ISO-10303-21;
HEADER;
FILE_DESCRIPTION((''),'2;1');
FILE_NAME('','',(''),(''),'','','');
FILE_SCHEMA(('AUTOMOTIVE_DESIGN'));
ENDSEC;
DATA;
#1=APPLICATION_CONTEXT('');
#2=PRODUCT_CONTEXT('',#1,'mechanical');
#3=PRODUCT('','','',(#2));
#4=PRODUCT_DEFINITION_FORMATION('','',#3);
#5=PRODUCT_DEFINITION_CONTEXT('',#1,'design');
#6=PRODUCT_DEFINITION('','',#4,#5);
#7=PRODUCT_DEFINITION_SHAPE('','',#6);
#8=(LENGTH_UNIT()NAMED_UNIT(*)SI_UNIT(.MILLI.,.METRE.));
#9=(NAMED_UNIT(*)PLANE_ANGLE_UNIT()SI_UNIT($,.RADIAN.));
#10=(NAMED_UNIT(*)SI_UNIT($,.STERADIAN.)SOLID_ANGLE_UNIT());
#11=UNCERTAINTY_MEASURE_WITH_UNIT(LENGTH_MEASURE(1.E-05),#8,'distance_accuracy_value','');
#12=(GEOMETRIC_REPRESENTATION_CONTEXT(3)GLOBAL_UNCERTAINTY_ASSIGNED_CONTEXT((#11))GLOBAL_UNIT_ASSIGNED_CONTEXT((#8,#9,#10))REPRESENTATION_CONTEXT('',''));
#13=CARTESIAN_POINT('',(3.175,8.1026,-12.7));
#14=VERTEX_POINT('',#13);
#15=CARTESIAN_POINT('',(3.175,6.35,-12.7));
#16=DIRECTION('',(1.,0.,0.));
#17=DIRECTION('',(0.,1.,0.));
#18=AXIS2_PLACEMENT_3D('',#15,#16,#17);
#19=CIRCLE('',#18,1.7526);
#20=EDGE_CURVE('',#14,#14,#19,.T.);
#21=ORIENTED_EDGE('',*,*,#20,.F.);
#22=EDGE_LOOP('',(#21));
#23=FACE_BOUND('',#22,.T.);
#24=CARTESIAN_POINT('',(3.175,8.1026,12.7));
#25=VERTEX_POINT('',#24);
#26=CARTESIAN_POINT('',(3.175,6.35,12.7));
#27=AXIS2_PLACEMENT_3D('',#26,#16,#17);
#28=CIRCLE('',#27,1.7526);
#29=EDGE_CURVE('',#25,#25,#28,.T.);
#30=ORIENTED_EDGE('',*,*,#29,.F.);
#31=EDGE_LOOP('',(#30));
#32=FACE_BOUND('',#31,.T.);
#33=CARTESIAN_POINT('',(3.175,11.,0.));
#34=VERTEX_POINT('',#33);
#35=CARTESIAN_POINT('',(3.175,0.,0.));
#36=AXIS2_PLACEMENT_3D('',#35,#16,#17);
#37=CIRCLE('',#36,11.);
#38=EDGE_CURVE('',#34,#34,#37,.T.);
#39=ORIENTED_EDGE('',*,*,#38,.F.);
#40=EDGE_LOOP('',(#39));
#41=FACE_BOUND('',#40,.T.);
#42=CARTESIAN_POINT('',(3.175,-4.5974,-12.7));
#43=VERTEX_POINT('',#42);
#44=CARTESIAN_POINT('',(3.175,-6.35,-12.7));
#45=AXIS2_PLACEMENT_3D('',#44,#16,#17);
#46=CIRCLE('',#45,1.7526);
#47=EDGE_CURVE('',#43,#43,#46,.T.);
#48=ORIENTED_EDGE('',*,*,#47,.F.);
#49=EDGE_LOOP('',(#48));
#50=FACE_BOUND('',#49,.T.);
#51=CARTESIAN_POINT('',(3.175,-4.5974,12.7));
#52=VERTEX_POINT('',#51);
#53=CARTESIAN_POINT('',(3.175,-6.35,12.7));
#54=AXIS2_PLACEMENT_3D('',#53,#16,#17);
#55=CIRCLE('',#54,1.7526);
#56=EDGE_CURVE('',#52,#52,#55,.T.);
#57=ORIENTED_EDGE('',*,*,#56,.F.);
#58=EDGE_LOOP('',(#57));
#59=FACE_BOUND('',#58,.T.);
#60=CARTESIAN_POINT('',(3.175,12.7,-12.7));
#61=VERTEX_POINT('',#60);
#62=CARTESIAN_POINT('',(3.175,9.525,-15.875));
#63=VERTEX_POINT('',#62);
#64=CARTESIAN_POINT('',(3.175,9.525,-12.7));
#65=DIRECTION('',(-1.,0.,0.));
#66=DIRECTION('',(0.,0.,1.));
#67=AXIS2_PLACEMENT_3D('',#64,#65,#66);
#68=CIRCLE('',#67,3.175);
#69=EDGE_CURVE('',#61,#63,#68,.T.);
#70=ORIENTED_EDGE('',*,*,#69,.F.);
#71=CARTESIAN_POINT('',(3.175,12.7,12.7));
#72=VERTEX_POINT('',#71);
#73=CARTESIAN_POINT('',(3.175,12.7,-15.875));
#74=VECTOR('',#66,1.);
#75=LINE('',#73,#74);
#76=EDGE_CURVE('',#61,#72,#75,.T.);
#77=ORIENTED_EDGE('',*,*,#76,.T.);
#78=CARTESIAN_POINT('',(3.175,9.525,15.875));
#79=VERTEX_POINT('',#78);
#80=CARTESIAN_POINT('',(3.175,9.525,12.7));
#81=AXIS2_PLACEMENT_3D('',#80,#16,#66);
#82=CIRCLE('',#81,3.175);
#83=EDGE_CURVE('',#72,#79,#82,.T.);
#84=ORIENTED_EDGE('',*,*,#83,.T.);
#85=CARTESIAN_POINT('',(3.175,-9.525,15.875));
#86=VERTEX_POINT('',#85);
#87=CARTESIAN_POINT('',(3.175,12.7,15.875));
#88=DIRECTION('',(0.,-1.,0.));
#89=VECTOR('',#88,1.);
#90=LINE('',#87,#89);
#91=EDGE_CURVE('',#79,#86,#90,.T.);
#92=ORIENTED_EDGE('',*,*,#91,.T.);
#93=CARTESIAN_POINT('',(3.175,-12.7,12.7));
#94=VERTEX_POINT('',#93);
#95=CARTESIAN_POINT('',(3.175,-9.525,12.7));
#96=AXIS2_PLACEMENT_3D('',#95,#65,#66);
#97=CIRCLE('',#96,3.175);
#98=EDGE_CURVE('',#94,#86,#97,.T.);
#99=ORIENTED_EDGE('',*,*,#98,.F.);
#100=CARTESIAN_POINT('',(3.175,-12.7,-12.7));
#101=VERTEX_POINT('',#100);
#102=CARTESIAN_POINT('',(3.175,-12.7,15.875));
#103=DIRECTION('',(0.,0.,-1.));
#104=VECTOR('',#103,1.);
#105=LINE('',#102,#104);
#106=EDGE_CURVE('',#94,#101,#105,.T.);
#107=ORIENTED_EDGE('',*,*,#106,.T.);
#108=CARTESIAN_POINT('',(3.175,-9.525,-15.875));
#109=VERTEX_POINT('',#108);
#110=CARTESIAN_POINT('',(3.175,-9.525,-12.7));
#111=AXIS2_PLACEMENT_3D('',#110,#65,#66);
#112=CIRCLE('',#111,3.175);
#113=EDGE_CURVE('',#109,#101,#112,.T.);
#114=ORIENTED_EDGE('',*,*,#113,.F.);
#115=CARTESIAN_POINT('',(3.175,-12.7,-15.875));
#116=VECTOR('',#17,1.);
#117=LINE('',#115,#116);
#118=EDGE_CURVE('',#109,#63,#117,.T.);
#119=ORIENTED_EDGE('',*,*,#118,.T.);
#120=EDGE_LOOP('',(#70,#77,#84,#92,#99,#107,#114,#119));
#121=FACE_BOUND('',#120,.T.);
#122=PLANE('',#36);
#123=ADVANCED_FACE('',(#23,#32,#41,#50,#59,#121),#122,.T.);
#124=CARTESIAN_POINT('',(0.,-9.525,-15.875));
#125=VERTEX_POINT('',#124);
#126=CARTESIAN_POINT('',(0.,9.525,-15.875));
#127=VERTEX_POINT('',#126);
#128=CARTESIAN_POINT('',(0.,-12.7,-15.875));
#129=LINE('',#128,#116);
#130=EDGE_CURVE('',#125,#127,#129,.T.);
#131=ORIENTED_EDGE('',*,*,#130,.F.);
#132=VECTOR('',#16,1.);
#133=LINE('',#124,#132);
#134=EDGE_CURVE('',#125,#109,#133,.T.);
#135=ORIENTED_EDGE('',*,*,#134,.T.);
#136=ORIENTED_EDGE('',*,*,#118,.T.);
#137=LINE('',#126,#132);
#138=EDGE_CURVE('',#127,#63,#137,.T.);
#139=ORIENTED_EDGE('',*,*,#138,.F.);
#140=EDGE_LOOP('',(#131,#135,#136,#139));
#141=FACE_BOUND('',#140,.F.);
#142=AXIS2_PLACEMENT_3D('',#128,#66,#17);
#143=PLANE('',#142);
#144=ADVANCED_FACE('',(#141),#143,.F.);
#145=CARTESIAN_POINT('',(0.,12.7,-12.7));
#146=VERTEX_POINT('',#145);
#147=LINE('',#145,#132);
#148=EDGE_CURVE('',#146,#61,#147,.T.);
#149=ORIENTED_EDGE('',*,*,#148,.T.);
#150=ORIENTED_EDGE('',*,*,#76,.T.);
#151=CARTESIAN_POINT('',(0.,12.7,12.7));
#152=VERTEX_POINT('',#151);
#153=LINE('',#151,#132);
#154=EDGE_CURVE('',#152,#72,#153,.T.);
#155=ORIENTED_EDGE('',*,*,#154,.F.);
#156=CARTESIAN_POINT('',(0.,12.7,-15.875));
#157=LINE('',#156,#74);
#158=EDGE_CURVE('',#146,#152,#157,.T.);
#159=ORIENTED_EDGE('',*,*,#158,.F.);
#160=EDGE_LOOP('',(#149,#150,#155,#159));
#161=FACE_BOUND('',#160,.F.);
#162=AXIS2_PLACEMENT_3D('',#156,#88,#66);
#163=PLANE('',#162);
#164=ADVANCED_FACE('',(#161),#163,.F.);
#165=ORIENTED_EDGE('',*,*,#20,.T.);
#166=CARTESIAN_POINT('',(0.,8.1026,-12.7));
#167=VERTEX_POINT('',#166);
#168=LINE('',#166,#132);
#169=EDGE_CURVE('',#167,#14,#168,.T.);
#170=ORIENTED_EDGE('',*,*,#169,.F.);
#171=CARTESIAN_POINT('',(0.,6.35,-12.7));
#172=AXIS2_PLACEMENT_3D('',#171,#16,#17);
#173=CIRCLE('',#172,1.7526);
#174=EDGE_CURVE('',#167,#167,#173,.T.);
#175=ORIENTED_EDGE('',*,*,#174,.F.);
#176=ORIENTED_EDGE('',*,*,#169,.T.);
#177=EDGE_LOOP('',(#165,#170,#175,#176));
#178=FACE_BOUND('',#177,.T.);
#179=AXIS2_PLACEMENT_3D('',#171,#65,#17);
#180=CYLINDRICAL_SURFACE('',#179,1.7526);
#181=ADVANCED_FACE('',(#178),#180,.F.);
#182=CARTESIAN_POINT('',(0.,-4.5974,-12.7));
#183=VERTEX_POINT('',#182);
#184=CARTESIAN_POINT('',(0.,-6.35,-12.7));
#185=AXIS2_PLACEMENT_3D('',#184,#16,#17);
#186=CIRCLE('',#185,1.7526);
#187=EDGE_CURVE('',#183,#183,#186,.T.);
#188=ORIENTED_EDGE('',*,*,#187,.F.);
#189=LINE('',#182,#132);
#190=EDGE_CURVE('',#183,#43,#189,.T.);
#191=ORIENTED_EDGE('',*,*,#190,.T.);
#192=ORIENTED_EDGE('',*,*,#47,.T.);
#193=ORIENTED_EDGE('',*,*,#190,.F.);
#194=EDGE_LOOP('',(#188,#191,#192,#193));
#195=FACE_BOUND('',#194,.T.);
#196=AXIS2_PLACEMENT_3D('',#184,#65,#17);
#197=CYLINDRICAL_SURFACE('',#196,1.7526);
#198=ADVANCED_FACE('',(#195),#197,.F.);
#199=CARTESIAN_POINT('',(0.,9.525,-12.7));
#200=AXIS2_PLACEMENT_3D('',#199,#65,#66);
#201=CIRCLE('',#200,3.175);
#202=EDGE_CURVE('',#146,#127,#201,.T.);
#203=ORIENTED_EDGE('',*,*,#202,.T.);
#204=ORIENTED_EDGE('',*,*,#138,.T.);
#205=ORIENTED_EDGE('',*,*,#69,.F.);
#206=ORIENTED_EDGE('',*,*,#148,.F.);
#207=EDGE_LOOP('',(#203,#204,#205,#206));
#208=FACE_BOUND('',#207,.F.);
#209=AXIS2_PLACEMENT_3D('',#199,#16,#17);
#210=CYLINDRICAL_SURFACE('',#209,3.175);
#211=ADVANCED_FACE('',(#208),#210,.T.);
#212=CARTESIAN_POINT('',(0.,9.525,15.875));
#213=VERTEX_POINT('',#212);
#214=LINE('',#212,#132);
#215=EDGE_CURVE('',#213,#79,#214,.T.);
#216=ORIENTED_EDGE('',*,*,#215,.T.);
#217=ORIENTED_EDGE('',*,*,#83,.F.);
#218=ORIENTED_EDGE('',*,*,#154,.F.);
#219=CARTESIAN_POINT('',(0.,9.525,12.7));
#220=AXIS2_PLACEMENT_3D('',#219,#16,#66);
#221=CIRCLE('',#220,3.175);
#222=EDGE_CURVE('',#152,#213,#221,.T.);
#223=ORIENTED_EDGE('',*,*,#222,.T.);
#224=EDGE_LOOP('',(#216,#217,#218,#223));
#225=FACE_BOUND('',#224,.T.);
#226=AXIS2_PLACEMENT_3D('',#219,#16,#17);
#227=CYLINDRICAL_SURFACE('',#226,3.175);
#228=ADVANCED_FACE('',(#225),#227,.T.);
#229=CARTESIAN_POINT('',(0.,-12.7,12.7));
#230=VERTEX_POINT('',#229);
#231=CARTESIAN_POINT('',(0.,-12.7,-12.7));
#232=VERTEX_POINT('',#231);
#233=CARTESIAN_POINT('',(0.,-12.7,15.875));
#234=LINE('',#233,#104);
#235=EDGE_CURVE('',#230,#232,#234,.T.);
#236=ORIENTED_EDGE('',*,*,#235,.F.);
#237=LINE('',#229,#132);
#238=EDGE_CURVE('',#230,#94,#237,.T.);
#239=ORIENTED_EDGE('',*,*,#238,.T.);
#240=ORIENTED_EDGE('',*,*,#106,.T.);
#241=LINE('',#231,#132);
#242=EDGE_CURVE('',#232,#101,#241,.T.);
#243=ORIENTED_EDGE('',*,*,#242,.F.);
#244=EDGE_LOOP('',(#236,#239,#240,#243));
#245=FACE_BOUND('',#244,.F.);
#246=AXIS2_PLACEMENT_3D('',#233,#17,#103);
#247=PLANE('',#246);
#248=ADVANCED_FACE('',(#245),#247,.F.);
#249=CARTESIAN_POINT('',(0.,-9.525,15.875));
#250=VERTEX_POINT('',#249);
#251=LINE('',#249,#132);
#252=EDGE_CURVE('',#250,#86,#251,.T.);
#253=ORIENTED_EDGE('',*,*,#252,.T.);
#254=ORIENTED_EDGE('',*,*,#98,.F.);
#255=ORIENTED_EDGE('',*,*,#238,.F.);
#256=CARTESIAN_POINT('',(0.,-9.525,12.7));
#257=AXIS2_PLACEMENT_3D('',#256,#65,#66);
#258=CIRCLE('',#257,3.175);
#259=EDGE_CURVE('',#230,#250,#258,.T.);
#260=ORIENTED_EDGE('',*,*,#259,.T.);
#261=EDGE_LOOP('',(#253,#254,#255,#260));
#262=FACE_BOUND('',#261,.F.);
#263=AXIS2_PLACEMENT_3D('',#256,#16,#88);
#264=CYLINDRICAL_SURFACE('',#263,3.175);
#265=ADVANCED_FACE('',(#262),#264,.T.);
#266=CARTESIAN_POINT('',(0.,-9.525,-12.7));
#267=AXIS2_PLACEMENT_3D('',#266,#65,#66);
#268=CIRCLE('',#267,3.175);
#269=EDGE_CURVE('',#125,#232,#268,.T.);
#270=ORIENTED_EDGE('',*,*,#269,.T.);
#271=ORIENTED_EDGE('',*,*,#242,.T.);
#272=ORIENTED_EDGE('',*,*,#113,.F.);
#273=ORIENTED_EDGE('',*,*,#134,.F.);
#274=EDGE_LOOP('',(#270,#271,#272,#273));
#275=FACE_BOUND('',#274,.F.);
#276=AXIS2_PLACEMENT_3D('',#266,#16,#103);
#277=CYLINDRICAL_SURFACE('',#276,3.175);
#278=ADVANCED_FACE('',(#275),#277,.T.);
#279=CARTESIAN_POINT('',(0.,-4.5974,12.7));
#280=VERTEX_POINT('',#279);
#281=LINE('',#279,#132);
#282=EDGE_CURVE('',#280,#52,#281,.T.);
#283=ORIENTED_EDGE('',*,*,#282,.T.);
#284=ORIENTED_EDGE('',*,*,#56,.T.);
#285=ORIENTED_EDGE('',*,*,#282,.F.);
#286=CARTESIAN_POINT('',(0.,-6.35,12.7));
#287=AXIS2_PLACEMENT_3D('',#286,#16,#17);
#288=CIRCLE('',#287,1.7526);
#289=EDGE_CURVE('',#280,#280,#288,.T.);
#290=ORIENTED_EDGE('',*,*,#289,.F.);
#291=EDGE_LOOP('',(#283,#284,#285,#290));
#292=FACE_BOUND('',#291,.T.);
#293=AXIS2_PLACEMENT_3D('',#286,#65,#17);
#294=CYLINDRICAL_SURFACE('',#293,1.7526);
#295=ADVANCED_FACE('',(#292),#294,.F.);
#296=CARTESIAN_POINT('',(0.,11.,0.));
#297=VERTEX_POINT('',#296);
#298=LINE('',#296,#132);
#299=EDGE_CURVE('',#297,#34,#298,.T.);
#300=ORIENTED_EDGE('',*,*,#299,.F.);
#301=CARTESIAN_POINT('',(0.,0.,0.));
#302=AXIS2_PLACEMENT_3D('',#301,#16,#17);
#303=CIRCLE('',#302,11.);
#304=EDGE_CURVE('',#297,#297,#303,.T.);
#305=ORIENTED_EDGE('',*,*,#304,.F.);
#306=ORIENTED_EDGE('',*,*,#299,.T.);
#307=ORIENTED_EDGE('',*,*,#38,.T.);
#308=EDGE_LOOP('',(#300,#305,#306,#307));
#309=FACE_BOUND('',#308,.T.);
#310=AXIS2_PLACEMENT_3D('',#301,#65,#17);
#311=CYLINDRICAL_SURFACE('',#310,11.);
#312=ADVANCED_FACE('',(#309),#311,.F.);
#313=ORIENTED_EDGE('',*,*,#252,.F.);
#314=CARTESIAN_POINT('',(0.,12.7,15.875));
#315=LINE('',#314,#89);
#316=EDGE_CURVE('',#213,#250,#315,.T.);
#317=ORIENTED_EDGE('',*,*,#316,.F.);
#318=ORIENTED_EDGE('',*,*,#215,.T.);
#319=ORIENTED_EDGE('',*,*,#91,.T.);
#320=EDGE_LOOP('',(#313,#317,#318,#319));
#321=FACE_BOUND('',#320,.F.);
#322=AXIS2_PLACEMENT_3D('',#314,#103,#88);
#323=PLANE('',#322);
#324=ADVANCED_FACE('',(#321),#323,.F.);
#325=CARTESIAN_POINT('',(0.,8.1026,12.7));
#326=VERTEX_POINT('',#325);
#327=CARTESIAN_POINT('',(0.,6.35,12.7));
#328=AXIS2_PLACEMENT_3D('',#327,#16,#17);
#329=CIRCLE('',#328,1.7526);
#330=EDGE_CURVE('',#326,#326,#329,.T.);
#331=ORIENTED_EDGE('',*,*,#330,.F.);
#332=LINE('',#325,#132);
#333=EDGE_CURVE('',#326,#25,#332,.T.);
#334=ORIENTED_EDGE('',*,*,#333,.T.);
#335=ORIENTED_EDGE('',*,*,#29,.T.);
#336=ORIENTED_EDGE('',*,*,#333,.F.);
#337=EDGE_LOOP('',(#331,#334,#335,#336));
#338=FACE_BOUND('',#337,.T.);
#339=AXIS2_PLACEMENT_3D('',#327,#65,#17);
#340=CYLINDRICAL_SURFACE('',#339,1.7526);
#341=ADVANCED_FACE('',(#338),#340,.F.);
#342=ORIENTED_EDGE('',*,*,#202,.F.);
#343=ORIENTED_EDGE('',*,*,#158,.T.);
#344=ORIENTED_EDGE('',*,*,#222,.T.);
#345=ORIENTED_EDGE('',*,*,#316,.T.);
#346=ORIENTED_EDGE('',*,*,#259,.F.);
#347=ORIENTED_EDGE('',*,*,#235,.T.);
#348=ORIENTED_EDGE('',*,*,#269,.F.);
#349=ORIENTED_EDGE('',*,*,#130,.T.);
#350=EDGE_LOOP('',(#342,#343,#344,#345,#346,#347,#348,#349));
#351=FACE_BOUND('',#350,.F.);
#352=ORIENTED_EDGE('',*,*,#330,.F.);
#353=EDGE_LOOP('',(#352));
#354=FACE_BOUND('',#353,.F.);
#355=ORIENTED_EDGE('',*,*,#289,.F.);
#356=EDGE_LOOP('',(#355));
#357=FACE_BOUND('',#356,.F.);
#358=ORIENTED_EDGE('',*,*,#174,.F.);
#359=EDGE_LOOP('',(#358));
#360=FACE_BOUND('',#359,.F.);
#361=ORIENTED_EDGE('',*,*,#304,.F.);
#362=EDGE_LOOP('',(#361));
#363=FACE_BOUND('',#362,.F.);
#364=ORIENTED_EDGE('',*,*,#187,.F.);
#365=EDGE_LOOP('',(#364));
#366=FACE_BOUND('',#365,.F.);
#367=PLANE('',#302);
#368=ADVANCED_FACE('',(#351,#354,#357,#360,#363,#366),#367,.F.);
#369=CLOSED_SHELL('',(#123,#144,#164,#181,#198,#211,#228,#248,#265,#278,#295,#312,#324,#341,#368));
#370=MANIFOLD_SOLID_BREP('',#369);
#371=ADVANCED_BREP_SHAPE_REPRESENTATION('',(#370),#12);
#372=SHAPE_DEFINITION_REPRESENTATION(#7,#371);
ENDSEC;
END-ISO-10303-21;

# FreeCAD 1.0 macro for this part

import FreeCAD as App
import Part
import Sketcher

V = App.Vector
Q = App.Units.Quantity


def edges_at(feature, points):
    """Names of the edges that pass closest to the given points."""
    edges = feature.Shape.Edges
    near = lambda p: min(range(len(edges)), key=lambda i: edges[i].distToShape(Part.Vertex(*p))[0])
    return sorted({f"Edge{near(p) + 1}" for p in points})

doc = App.newDocument("Part")
body = doc.addObject("PartDesign::Body", "Body")

# Sketch on YZ plane
sketch1 = body.newObject("Sketcher::SketchObject", "Sketch")
sketch1.AttachmentSupport = (doc.getObject("YZ_Plane"), [""])
sketch1.MapMode = "FlatFace"
sketch1.addGeometry(Part.LineSegment(V(12.7, -15.9, 0), V(12.7, 15.9, 0)), False)
sketch1.addGeometry(Part.LineSegment(V(12.7, 15.9, 0), V(-12.7, 15.9, 0)), False)
sketch1.addGeometry(Part.LineSegment(V(-12.7, 15.9, 0), V(-12.7, -15.9, 0)), False)
sketch1.addGeometry(Part.LineSegment(V(-12.7, -15.9, 0), V(12.7, -15.9, 0)), False)
sketch1.addGeometry(Part.Circle(V(-6.3, -12.7, 0), V(0, 0, 1), 1.8), False)
sketch1.addGeometry(Part.Circle(V(6.3, -12.7, 0), V(0, 0, 1), 1.8), False)
sketch1.addGeometry(Part.Circle(V(0, 0, 0), V(0, 0, 1), 11), False)
sketch1.addGeometry(Part.Circle(V(-6.3, 12.7, 0), V(0, 0, 1), 1.8), False)
sketch1.addGeometry(Part.Circle(V(6.3, 12.7, 0), V(0, 0, 1), 1.8), False)
sketch1.addConstraint(Sketcher.Constraint("Coincident", 0, 2, 1, 1))
sketch1.addConstraint(Sketcher.Constraint("Coincident", 1, 2, 2, 1))
sketch1.addConstraint(Sketcher.Constraint("Coincident", 2, 2, 3, 1))
sketch1.addConstraint(Sketcher.Constraint("Coincident", 3, 2, 0, 1))
sketch1.addConstraint(Sketcher.Constraint("Vertical", 0))
sketch1.addConstraint(Sketcher.Constraint("Horizontal", 1))
sketch1.addConstraint(Sketcher.Constraint("Vertical", 2))
sketch1.addConstraint(Sketcher.Constraint("Horizontal", 3))
sketch1.addConstraint(Sketcher.Constraint("Coincident", 6, 3, -1, 1))
sketch1.addConstraint(Sketcher.Constraint("Equal", 4, 5))
sketch1.addConstraint(Sketcher.Constraint("Equal", 5, 7))
sketch1.addConstraint(Sketcher.Constraint("Equal", 7, 8))
sketch1.addConstraint(Sketcher.Constraint("Symmetric", 5, 3, 7, 3, -1, 1))
sketch1.addConstraint(Sketcher.Constraint("Symmetric", 4, 3, 8, 3, -1, 1))
sketch1.addConstraint(Sketcher.Constraint("Symmetric", 0, 2, 2, 2, -1, 1))
sketch1.addConstraint(Sketcher.Constraint("Symmetric", 4, 3, 5, 3, -2))
sketch1.addConstraint(Sketcher.Constraint("DistanceX", 1, 2, 1, 1, Q("1 in")))
sketch1.addConstraint(Sketcher.Constraint("Diameter", 4, Q("0.138 in")))
sketch1.addConstraint(Sketcher.Constraint("DistanceY", 4, 3, 7, 3, Q("1 in")))
sketch1.addConstraint(Sketcher.Constraint("DistanceY", 0, 1, 0, 2, Q("1.25 in")))
sketch1.addConstraint(Sketcher.Constraint("DistanceX", 4, 3, 5, 3, Q("0.5 in")))
sketch1.addConstraint(Sketcher.Constraint("Diameter", 6, 22.0))
pad1 = body.newObject("PartDesign::Pad", "Pad")
pad1.Profile = sketch1
pad1.Length = Q("0.125 in")
doc.recompute()

fillet = body.newObject("PartDesign::Fillet", "Fillet")
fillet.Base = (pad1, edges_at(pad1, [
    (1.587, 12.7, 15.875),
    (1.587, -12.7, 15.875),
    (1.587, 12.7, -15.875),
    (1.587, -12.7, -15.875),
]))
fillet.Radius = Q("0.125 in")

doc.recompute()
